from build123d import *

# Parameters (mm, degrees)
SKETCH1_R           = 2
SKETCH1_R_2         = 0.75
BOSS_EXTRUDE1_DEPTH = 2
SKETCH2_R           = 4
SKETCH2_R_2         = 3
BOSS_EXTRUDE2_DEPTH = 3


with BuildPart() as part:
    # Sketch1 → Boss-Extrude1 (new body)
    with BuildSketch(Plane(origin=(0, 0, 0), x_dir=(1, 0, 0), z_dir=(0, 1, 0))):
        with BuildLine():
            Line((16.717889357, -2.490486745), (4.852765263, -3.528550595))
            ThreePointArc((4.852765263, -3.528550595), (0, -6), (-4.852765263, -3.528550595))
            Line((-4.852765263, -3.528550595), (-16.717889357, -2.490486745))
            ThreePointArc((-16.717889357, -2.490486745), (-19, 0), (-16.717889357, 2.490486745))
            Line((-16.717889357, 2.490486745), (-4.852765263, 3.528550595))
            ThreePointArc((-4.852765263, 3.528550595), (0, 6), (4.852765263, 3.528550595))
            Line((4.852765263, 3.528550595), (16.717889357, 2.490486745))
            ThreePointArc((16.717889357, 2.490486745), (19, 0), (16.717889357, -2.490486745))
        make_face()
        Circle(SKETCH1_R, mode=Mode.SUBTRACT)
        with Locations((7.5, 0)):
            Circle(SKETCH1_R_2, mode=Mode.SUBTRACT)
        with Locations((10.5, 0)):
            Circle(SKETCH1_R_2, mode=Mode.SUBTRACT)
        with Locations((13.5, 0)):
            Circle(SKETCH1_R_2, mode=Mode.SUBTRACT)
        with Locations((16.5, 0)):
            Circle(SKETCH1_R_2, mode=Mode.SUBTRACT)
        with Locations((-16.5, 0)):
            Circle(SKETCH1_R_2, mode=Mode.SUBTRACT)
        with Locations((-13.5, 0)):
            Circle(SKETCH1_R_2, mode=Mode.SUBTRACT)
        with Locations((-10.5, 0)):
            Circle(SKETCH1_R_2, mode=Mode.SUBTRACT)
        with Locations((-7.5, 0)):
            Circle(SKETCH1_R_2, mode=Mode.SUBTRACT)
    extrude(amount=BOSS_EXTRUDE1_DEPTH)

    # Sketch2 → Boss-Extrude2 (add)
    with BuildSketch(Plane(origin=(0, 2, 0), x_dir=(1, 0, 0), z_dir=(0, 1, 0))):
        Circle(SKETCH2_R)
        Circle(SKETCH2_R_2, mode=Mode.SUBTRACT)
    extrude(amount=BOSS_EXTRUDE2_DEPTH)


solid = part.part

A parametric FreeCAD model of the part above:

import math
import FreeCAD as App
import Part
import Sketcher
from FreeCAD import Vector
Q = App.Units.Quantity

doc = App.newDocument("Part")
body = doc.addObject("PartDesign::Body", "Body")

# Sketch on XZ plane
sketch1 = doc.addObject("Sketcher::SketchObject", "Sketch")
body.addObject(sketch1)
sketch1.AttachmentSupport = (doc.XZ_Plane, [""])
sketch1.MapMode = "FlatFace"
sketch1.addGeometry([
    Part.LineSegment(Vector(4.9, 3.5, 0), Vector(16.7, 2.5, 0)),  # 0
    Part.ArcOfCircle(Part.Circle(Vector(16.5, 0, 0), Vector(0, 0, 1), 2.5), math.radians(-85), math.radians(85)),  # 1
    Part.LineSegment(Vector(16.7, -2.5, 0), Vector(4.9, -3.5, 0)),  # 2
    Part.ArcOfCircle(Part.Circle(Vector(0, 0, 0), Vector(0, 0, 1), 6), math.radians(-144), math.radians(-36)),  # 3
    Part.LineSegment(Vector(-4.9, -3.5, 0), Vector(-16.7, -2.5, 0)),  # 4
    Part.ArcOfCircle(Part.Circle(Vector(-16.5, 0, 0), Vector(0, 0, 1), 2.5), math.radians(95), math.radians(265)),  # 5
    Part.LineSegment(Vector(-16.7, 2.5, 0), Vector(-4.9, 3.5, 0)),  # 6
    Part.ArcOfCircle(Part.Circle(Vector(0, 0, 0), Vector(0, 0, 1), 6), math.radians(36), math.radians(144)),  # 7
    Part.Circle(Vector(16.5, 0, 0), Vector(0, 0, 1), 0.8),  # 8
    Part.Circle(Vector(13.5, 0, 0), Vector(0, 0, 1), 0.8),  # 9
    Part.Circle(Vector(10.5, 0, 0), Vector(0, 0, 1), 0.8),  # 10
    Part.Circle(Vector(7.5, 0, 0), Vector(0, 0, 1), 0.8),  # 11
    Part.Circle(Vector(0, 0, 0), Vector(0, 0, 1), 2),  # 12
    Part.Circle(Vector(-7.5, 0, 0), Vector(0, 0, 1), 0.8),  # 13
    Part.Circle(Vector(-10.5, 0, 0), Vector(0, 0, 1), 0.8),  # 14
    Part.Circle(Vector(-13.5, 0, 0), Vector(0, 0, 1), 0.8),  # 15
    Part.Circle(Vector(-16.5, 0, 0), Vector(0, 0, 1), 0.8),  # 16
], False)
sketch1.addConstraint([
    Sketcher.Constraint("Tangent", 0, 2, 1, 2),
    Sketcher.Constraint("Tangent", 1, 1, 2, 1),
    Sketcher.Constraint("Coincident", 2, 2, 3, 2),
    Sketcher.Constraint("Coincident", 3, 1, 4, 1),
    Sketcher.Constraint("Tangent", 4, 2, 5, 2),
    Sketcher.Constraint("Tangent", 5, 1, 6, 1),
    Sketcher.Constraint("Coincident", 6, 2, 7, 2),
    Sketcher.Constraint("Coincident", 7, 1, 0, 1),
    Sketcher.Constraint("Coincident", 3, 3, -1, 1),
    Sketcher.Constraint("Coincident", 7, 3, -1, 1),
    Sketcher.Constraint("Coincident", 12, 3, -1, 1),
    Sketcher.Constraint("Coincident", 8, 3, 1, 3),
    Sketcher.Constraint("Coincident", 16, 3, 5, 3),
    Sketcher.Constraint("Equal", 1, 5),
    Sketcher.Constraint("Equal", 3, 7),
    Sketcher.Constraint("Equal", 8, 9),
    Sketcher.Constraint("Equal", 9, 10),
    Sketcher.Constraint("Equal", 10, 11),
    Sketcher.Constraint("Equal", 11, 13),
    Sketcher.Constraint("Equal", 13, 14),
    Sketcher.Constraint("Equal", 14, 15),
    Sketcher.Constraint("Equal", 15, 16),
    Sketcher.Constraint("Symmetric", 1, 3, 5, 3, -1, 1),
    Sketcher.Constraint("Symmetric", 11, 3, 13, 3, -1, 1),
    Sketcher.Constraint("Symmetric", 10, 3, 14, 3, -1, 1),
    Sketcher.Constraint("Symmetric", 9, 3, 15, 3, -1, 1),
    Sketcher.Constraint("Symmetric", 1, 1, 4, 2, -2),
    Sketcher.Constraint("PointOnObject", 9, 3, -1),
    Sketcher.Constraint("PointOnObject", 10, 3, -1),
    Sketcher.Constraint("PointOnObject", 11, 3, -1),
    Sketcher.Constraint("Parallel", 0, 4),
    Sketcher.Constraint("Parallel", 2, 6),
    Sketcher.Constraint("Diameter", 12, 4.0),
    Sketcher.Constraint("Radius", 3, 6.0),
    Sketcher.Constraint("Diameter", 8, 1.5),
    Sketcher.Constraint("Radius", 1, 2.5),
    Sketcher.Constraint("Angle", 0, Q("-5 deg")),
    Sketcher.Constraint("DistanceX", 5, 3, 1, 3, 33.0),
    Sketcher.Constraint("DistanceX", 9, 3, 1, 3, 3.0),
    Sketcher.Constraint("DistanceX", 10, 3, 9, 3, 3.0),
    Sketcher.Constraint("DistanceX", 11, 3, 10, 3, 3.0),
])
pad1 = doc.addObject("PartDesign::Pad", "Pad")
body.addObject(pad1)
pad1.Profile = sketch1
pad1.Length = 2
pad1.Reversed = True

# Sketch on XZ plane
sketch2 = doc.addObject("Sketcher::SketchObject", "Sketch001")
body.addObject(sketch2)
sketch2.AttachmentSupport = (doc.XZ_Plane, [""])
sketch2.MapMode = "FlatFace"
sketch2.AttachmentOffset = App.Placement(Vector(0, 0, -2), App.Rotation())
sketch2.addGeometry([
    Part.Circle(Vector(0, 0, 0), Vector(0, 0, 1), 4),
    Part.Circle(Vector(0, 0, 0), Vector(0, 0, 1), 3),
], False)
sketch2.addConstraint([
    Sketcher.Constraint("Coincident", 0, 3, -1, 1),
    Sketcher.Constraint("Coincident", 1, 3, -1, 1),
    Sketcher.Constraint("Diameter", 0, 8.0),
    Sketcher.Constraint("Diameter", 1, 6.0),
])
pad2 = doc.addObject("PartDesign::Pad", "Pad001")
body.addObject(pad2)
pad2.Profile = sketch2
pad2.Length = 3
pad2.Reversed = True

doc.recompute()
